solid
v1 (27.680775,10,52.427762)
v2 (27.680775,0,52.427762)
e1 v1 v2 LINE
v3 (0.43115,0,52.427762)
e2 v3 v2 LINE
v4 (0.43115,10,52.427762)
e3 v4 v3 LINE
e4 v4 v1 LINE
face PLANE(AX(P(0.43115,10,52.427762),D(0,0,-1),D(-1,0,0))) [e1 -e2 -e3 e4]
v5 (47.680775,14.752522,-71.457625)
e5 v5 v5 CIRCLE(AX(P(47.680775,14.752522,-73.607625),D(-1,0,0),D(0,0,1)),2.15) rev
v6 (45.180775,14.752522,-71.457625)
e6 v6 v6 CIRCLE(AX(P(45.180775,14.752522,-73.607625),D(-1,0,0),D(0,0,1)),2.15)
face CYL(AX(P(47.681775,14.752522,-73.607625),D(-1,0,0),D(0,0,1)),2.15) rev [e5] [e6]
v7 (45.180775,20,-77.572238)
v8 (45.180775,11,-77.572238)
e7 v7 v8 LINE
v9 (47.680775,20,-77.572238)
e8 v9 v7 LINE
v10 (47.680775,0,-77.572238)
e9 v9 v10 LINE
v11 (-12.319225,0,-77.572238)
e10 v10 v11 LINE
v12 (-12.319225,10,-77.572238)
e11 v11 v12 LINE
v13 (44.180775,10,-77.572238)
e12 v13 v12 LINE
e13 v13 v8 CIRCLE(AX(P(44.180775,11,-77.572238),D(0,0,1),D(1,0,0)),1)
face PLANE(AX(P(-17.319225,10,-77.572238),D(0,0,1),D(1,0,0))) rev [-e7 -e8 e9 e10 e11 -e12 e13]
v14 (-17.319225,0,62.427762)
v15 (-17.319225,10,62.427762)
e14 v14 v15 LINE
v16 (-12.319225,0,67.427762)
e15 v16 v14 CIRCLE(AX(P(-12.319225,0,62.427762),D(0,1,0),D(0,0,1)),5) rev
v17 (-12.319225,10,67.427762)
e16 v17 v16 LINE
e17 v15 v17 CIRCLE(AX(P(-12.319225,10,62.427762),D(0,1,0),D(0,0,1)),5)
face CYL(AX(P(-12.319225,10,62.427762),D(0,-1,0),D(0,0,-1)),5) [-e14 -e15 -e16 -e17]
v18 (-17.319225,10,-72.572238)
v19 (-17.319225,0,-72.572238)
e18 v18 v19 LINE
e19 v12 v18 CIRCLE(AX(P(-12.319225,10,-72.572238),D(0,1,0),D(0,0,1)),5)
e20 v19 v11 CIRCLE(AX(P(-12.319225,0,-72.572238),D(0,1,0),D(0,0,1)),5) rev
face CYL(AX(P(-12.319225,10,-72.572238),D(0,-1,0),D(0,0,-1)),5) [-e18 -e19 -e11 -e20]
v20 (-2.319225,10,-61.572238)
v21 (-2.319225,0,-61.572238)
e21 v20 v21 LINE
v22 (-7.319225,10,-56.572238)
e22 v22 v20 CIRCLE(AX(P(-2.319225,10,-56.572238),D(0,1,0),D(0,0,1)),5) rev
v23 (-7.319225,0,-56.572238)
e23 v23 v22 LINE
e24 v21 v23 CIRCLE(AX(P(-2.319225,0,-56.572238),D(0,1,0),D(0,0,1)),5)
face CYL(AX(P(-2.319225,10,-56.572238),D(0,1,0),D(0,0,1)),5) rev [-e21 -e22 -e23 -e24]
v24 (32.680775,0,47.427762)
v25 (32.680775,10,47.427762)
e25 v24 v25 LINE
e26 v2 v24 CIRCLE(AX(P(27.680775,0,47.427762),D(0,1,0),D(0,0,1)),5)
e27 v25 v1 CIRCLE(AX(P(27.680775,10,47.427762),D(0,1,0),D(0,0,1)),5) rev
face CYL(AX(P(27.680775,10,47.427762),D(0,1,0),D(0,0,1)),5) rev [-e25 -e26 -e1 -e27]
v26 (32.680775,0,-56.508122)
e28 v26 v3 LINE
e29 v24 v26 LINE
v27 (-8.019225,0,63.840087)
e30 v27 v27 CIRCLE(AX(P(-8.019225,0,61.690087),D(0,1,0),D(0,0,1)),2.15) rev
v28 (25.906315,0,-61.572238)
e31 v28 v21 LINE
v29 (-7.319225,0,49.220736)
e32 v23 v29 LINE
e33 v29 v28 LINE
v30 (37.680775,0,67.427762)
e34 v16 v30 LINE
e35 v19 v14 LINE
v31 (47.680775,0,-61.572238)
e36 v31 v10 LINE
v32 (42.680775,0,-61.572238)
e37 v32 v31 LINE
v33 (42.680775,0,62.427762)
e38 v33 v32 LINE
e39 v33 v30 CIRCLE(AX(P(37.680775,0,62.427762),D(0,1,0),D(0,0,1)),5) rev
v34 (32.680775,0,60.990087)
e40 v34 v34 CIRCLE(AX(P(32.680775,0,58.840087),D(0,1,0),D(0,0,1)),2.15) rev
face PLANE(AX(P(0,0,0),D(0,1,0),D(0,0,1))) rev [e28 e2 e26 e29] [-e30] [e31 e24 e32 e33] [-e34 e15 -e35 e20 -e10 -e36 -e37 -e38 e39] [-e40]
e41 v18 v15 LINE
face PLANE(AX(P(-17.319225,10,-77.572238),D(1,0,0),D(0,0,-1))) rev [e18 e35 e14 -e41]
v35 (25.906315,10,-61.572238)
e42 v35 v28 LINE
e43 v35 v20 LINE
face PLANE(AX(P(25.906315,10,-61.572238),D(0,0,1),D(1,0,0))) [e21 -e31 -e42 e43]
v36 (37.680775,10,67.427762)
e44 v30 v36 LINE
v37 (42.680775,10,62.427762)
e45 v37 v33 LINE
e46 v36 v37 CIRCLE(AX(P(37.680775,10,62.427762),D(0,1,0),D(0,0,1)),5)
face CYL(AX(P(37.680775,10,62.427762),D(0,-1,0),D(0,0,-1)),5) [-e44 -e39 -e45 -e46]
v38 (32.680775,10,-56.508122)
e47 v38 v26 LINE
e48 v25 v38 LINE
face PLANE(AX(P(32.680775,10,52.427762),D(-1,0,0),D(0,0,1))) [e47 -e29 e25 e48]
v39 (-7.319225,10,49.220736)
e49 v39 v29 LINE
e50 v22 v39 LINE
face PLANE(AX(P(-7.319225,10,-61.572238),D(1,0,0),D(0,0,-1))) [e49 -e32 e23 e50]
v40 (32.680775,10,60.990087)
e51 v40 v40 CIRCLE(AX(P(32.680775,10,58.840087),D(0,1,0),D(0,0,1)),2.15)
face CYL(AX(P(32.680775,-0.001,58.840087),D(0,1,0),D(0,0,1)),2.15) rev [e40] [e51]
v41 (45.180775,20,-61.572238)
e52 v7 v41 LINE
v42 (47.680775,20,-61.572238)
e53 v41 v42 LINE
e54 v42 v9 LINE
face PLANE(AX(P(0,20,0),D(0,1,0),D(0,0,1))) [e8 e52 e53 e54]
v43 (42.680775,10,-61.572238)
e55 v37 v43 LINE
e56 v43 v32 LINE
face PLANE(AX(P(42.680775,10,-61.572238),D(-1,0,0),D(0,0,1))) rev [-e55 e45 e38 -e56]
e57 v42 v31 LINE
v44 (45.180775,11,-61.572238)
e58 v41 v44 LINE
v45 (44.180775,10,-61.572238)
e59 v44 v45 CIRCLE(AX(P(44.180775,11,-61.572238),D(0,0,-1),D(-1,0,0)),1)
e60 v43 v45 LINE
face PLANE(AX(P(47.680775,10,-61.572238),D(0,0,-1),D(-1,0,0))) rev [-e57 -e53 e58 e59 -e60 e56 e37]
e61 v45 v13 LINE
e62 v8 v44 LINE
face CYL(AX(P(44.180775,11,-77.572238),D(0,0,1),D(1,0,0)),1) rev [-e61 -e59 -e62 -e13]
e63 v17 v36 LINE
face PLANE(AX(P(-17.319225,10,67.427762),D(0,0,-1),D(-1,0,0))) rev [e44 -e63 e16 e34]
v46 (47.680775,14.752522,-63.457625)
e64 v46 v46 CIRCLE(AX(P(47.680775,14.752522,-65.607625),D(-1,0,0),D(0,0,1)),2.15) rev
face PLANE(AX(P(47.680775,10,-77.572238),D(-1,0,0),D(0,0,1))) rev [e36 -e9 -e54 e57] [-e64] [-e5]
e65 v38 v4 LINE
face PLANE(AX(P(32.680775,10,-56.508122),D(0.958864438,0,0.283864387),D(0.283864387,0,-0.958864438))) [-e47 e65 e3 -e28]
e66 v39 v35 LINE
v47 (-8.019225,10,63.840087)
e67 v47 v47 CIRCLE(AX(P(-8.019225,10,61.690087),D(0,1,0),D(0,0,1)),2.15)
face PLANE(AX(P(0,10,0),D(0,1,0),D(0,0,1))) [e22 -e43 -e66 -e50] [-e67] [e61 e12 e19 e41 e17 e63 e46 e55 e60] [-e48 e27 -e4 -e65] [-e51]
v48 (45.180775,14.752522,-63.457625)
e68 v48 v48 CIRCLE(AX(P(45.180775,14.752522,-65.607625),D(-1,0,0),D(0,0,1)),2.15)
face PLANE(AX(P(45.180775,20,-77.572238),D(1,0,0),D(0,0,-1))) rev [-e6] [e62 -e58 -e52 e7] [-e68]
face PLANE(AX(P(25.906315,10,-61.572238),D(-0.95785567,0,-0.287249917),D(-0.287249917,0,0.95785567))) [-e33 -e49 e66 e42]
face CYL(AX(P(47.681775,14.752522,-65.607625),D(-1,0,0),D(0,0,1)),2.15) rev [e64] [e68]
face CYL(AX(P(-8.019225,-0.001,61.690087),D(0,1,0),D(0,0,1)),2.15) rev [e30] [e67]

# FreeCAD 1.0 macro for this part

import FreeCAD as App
import Part
import Sketcher

V = App.Vector
Q = App.Units.Quantity


def edges_at(feature, points):
    """Names of the edges that pass closest to the given points."""
    edges = feature.Shape.Edges
    near = lambda p: min(range(len(edges)), key=lambda i: edges[i].distToShape(Part.Vertex(*p))[0])
    return sorted({f"Edge{near(p) + 1}" for p in points})


def add_polygon(sketch, points):
    """Adds a closed chain of lines whose ends are joined by coincident constraints."""
    first, n = sketch.GeometryCount, len(points)
    for a, b in zip(points, points[1:] + points[:1]):
        sketch.addGeometry(Part.LineSegment(App.Vector(*a, 0), App.Vector(*b, 0)), False)
    for i in range(n):
        sketch.addConstraint(Sketcher.Constraint("Coincident", first + i, 2, first + (i + 1) % n, 1))

doc = App.newDocument("Part")
body = doc.addObject("PartDesign::Body", "Body")

# Sketch on XZ plane
sketch1 = doc.addObject("Sketcher::SketchObject", "Sketch")
body.addObject(sketch1)
sketch1.AttachmentSupport = (doc.XZ_Plane, [""])
sketch1.MapMode = "FlatFace"
add_polygon(sketch1, [(48, -78), (-17, -78), (-17, 67), (43, 67), (43, -62), (48, -62)])  # lines 0-5
add_polygon(sketch1, [(0, 52), (33, -57), (33, 52)])  # lines 6-8
add_polygon(sketch1, [(26, -62), (-7, 49), (-7, -62)])  # lines 9-11
sketch1.addConstraint([
    Sketcher.Constraint("Horizontal", 0),
    Sketcher.Constraint("Vertical", 1),
    Sketcher.Constraint("Horizontal", 2),
    Sketcher.Constraint("Vertical", 3),
    Sketcher.Constraint("Horizontal", 4),
    Sketcher.Constraint("Vertical", 5),
    Sketcher.Constraint("Vertical", 7),
    Sketcher.Constraint("Horizontal", 8),
    Sketcher.Constraint("Vertical", 10),
    Sketcher.Constraint("Horizontal", 11),
    Sketcher.Constraint("Horizontal", 4, 2, 10, 2),
    Sketcher.Constraint("DistanceX", 0, 2, 0, 1, Q("65 mm")),
    Sketcher.Constraint("DistanceX", 2, 1, 2, 2, Q("60 mm")),
    Sketcher.Constraint("DistanceY", 1, 1, 1, 2, Q("145 mm")),
    Sketcher.Constraint("DistanceY", 3, 2, 3, 1, Q("129 mm")),
    Sketcher.Constraint("DistanceX", 6, 2, 3, 2, Q("10 mm")),
    Sketcher.Constraint("DistanceY", 7, 2, 2, 2, Q("15 mm")),
    Sketcher.Constraint("DistanceX", 1, 2, 9, 2, Q("10 mm")),
    Sketcher.Constraint("DistanceX", 11, 1, 11, 2, Q("33.225541 mm")),
    Sketcher.Constraint("Distance", 9, Q("115.667712 mm")),
    Sketcher.Constraint("DistanceX", 8, 2, 8, 1, Q("32.249624 mm")),
    Sketcher.Constraint("DistanceY", 7, 1, 7, 2, Q("108.935884 mm")),
    Sketcher.Constraint("DistanceY", 6, 2, -1, 1, Q("56.508122 mm")),
    Sketcher.Constraint("DistanceX", -1, 1, 8, 2, Q("0.43115 mm")),
])
pad1 = doc.addObject("PartDesign::Pad", "Pad")
body.addObject(pad1)
pad1.Profile = sketch1
pad1.Length = 10
pad1.Reversed = True

# Sketch on XZ plane
sketch2 = doc.addObject("Sketcher::SketchObject", "Sketch001")
body.addObject(sketch2)
sketch2.AttachmentSupport = (doc.XZ_Plane, [""])
sketch2.MapMode = "FlatFace"
sketch2.AttachmentOffset = App.Placement(V(0, 0, -10), App.Rotation())
add_polygon(sketch2, [(45.2, -77.6), (45.2, -61.6), (47.7, -61.6), (47.7, -77.6)])  # lines 0-3
sketch2.addConstraint([
    Sketcher.Constraint("Vertical", 0),
    Sketcher.Constraint("Horizontal", 1),
    Sketcher.Constraint("Vertical", 2),
    Sketcher.Constraint("Horizontal", 3),
    Sketcher.Constraint("DistanceY", 0, 1, 0, 2, Q("16 mm")),
    Sketcher.Constraint("DistanceX", 1, 1, 1, 2, Q("2.5 mm")),
    Sketcher.Constraint("DistanceX", -1, 1, 0, 2, Q("45.180775 mm")),
    Sketcher.Constraint("DistanceY", 0, 2, -1, 1, Q("61.572238 mm")),
])
pad2 = doc.addObject("PartDesign::Pad", "Pad001")
body.addObject(pad2)
pad2.Profile = sketch2
pad2.Length = 10
pad2.Reversed = True

# Sketch on YZ plane
sketch3 = doc.addObject("Sketcher::SketchObject", "Sketch002")
body.addObject(sketch3)
sketch3.AttachmentSupport = (doc.YZ_Plane, [""])
sketch3.MapMode = "FlatFace"
sketch3.AttachmentOffset = App.Placement(V(0, 0, 45.180775), App.Rotation())
sketch3.addGeometry(Part.Circle(V(14.8, -73.6, 0), V(0, 0, 1), 2.1), False)
sketch3.addConstraint([
    Sketcher.Constraint("Diameter", 0, Q("4.3 mm")),
    Sketcher.Constraint("DistanceX", -1, 1, 0, 3, Q("14.752522 mm")),
    Sketcher.Constraint("DistanceY", 0, 3, -1, 1, Q("73.607625 mm")),
])
pocket1 = doc.addObject("PartDesign::Pocket", "Pocket")
body.addObject(pocket1)
pocket1.Profile = sketch3
pocket1.Type = "UpToFirst"
pocket1.Reversed = True

# Sketch on YZ plane
sketch4 = doc.addObject("Sketcher::SketchObject", "Sketch003")
body.addObject(sketch4)
sketch4.AttachmentSupport = (doc.YZ_Plane, [""])
sketch4.MapMode = "FlatFace"
sketch4.AttachmentOffset = App.Placement(V(0, 0, 45.180775), App.Rotation())
sketch4.addGeometry(Part.Circle(V(14.8, -65.6, 0), V(0, 0, 1), 2.1), False)
sketch4.addConstraint([
    Sketcher.Constraint("Diameter", 0, Q("4.3 mm")),
    Sketcher.Constraint("DistanceX", -1, 1, 0, 3, Q("14.752522 mm")),
    Sketcher.Constraint("DistanceY", 0, 3, -1, 1, Q("65.607625 mm")),
])
pocket2 = doc.addObject("PartDesign::Pocket", "Pocket001")
body.addObject(pocket2)
pocket2.Profile = sketch4
pocket2.Type = "UpToFirst"
pocket2.Reversed = True

# Sketch on XZ plane
sketch5 = doc.addObject("Sketcher::SketchObject", "Sketch004")
body.addObject(sketch5)
sketch5.AttachmentSupport = (doc.XZ_Plane, [""])
sketch5.MapMode = "FlatFace"
sketch5.AttachmentOffset = App.Placement(V(0, 0, -10), App.Rotation())
sketch5.addGeometry(Part.Circle(V(-8, 61.7, 0), V(0, 0, 1), 2.1), False)
sketch5.addConstraint([
    Sketcher.Constraint("Diameter", 0, Q("4.3 mm")),
    Sketcher.Constraint("DistanceX", 0, 3, -1, 1, Q("8.019225 mm")),
    Sketcher.Constraint("DistanceY", -1, 1, 0, 3, Q("61.690087 mm")),
])
pocket3 = doc.addObject("PartDesign::Pocket", "Pocket002")
body.addObject(pocket3)
pocket3.Profile = sketch5
pocket3.Type = "UpToFirst"
pocket3.Reversed = True

# Sketch on XZ plane
sketch6 = doc.addObject("Sketcher::SketchObject", "Sketch005")
body.addObject(sketch6)
sketch6.AttachmentSupport = (doc.XZ_Plane, [""])
sketch6.MapMode = "FlatFace"
sketch6.AttachmentOffset = App.Placement(V(0, 0, -10), App.Rotation())
sketch6.addGeometry(Part.Circle(V(32.7, 58.8, 0), V(0, 0, 1), 2.1), False)
sketch6.addConstraint([
    Sketcher.Constraint("Diameter", 0, Q("4.3 mm")),
    Sketcher.Constraint("DistanceX", -1, 1, 0, 3, Q("32.680775 mm")),
    Sketcher.Constraint("DistanceY", -1, 1, 0, 3, Q("58.840087 mm")),
])
pocket4 = doc.addObject("PartDesign::Pocket", "Pocket003")
body.addObject(pocket4)
pocket4.Profile = sketch6
pocket4.Type = "UpToFirst"
pocket4.Reversed = True
doc.recompute()

fillet = doc.addObject("PartDesign::Fillet", "Fillet")
body.addObject(fillet)
fillet.Base = (pocket4, edges_at(pocket4, [(-17.319, 5, 67.428), (-17.319, 5, -77.572), (42.681, 5, 67.428)]))
fillet.Radius = 5
doc.recompute()

fillet2 = doc.addObject("PartDesign::Fillet", "Fillet001")
body.addObject(fillet2)
fillet2.Base = (fillet, edges_at(fillet, [(-7.319, 5, -61.572), (32.681, 5, 52.428)]))
fillet2.Radius = 5
doc.recompute()

fillet3 = doc.addObject("PartDesign::Fillet", "Fillet002")
body.addObject(fillet3)
fillet3.Base = (fillet2, edges_at(fillet2, [(45.181, 10, -69.572)]))
fillet3.Radius = 1

doc.recompute()
